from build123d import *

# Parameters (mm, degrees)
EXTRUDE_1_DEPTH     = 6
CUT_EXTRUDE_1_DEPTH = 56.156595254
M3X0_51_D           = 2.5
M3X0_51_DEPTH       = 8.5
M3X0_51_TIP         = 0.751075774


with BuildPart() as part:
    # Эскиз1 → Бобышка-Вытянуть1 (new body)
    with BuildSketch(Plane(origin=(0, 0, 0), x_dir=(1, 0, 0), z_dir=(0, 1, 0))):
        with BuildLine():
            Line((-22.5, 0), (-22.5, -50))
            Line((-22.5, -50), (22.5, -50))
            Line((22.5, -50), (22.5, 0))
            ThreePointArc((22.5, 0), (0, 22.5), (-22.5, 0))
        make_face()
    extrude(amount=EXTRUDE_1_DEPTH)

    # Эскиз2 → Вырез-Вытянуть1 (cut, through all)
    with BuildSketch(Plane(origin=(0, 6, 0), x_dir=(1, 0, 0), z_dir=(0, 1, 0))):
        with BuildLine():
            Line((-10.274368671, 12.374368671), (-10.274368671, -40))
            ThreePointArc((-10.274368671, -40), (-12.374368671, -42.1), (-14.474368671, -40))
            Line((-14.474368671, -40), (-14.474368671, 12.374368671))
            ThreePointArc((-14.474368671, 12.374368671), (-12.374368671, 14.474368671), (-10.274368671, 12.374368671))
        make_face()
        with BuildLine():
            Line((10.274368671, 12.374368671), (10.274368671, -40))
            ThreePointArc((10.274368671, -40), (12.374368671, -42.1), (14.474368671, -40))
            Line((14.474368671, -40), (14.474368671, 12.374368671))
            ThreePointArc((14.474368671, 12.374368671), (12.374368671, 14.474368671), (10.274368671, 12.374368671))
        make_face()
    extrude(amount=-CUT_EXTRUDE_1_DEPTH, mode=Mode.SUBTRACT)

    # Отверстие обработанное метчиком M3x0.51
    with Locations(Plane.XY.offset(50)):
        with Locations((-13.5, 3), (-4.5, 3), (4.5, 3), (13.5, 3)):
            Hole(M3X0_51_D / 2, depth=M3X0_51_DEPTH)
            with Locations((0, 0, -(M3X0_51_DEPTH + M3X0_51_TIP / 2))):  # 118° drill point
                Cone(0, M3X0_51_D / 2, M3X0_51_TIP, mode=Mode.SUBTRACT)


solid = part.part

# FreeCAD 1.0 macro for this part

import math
import FreeCAD as App
import Part
import Sketcher
from FreeCAD import Vector

doc = App.newDocument("Part")
body = doc.addObject("PartDesign::Body", "Body")

# Sketch on XZ plane
sketch1 = body.newObject("Sketcher::SketchObject", "Sketch")
sketch1.AttachmentSupport = (doc.getObject("XZ_Plane"), [""])
sketch1.MapMode = "FlatFace"
sketch1.addGeometry([
    Part.LineSegment(Vector(-22, 0, 0), Vector(-22, 50, 0)),
    Part.LineSegment(Vector(-22, 50, 0), Vector(22, 50, 0)),
    Part.LineSegment(Vector(22, 50, 0), Vector(22, 0, 0)),
    Part.ArcOfCircle(Part.Circle(Vector(0, 0, 0), Vector(0, 0, 1), 22), math.radians(180), math.radians(360)),
], False)
sketch1.addConstraint([
    Sketcher.Constraint("Coincident", 0, 2, 1, 1),
    Sketcher.Constraint("Coincident", 1, 2, 2, 1),
    Sketcher.Constraint("Tangent", 2, 2, 3, 2),
    Sketcher.Constraint("Tangent", 3, 1, 0, 1),
    Sketcher.Constraint("Vertical", 0),
    Sketcher.Constraint("Horizontal", 1),
    Sketcher.Constraint("Vertical", 2),
    Sketcher.Constraint("Coincident", 3, 3, -1, 1),
    Sketcher.Constraint("Radius", 3, 22.5),
    Sketcher.Constraint("DistanceY", 0, 1, 0, 2, 50.0),
])
pad1 = body.newObject("PartDesign::Pad", "Pad")
pad1.Profile = sketch1
pad1.Length = 6
pad1.Reversed = True

# Sketch on XZ plane
sketch2 = body.newObject("Sketcher::SketchObject", "Sketch001")
sketch2.AttachmentSupport = (doc.getObject("XZ_Plane"), [""])
sketch2.MapMode = "FlatFace"
sketch2.AttachmentOffset = App.Placement(Vector(0, 0, -6), App.Rotation())
sketch2.addGeometry([
    Part.LineSegment(Vector(-10.3, 40, 0), Vector(-10.3, -12.4, 0)),  # 0
    Part.ArcOfCircle(Part.Circle(Vector(-12.4, -12.4, 0), Vector(0, 0, 1), 2.1), math.radians(180), math.radians(360)),  # 1
    Part.LineSegment(Vector(-14.5, -12.4, 0), Vector(-14.5, 40, 0)),  # 2
    Part.ArcOfCircle(Part.Circle(Vector(-12.4, 40, 0), Vector(0, 0, 1), 2.1), math.radians(0), math.radians(180)),  # 3
    Part.LineSegment(Vector(10.3, -12.4, 0), Vector(10.3, 40, 0)),  # 4
    Part.ArcOfCircle(Part.Circle(Vector(12.4, 40, 0), Vector(0, 0, 1), 2.1), math.radians(0), math.radians(180)),  # 5
    Part.LineSegment(Vector(14.5, 40, 0), Vector(14.5, -12.4, 0)),  # 6
    Part.ArcOfCircle(Part.Circle(Vector(12.4, -12.4, 0), Vector(0, 0, 1), 2.1), math.radians(180), math.radians(360)),  # 7
], False)
sketch2.addConstraint([
    Sketcher.Constraint("Tangent", 0, 2, 1, 2),
    Sketcher.Constraint("Tangent", 1, 1, 2, 1),
    Sketcher.Constraint("Tangent", 2, 2, 3, 2),
    Sketcher.Constraint("Tangent", 3, 1, 0, 1),
    Sketcher.Constraint("Tangent", 4, 2, 5, 2),
    Sketcher.Constraint("Tangent", 5, 1, 6, 1),
    Sketcher.Constraint("Tangent", 6, 2, 7, 2),
    Sketcher.Constraint("Tangent", 7, 1, 4, 1),
    Sketcher.Constraint("Vertical", 0),
    Sketcher.Constraint("Vertical", 2),
    Sketcher.Constraint("Vertical", 4),
    Sketcher.Constraint("Vertical", 6),
    Sketcher.Constraint("Equal", 3, 5),
    Sketcher.Constraint("Symmetric", 3, 3, 5, 3, -2),
    Sketcher.Constraint("Horizontal", 1, 3, 7, 3),
    Sketcher.Constraint("Radius", 1, 2.1),
    Sketcher.Constraint("DistanceY", -1, 1, 3, 3, 40.0),
    Sketcher.Constraint("DistanceY", 0, 2, 0, 1, 52.374369),
    Sketcher.Constraint("DistanceX", 1, 3, -1, 1, 12.374369),
])
pocket1 = body.newObject("PartDesign::Pocket", "Pocket")
pocket1.Profile = sketch2
pocket1.Type = "ThroughAll"
pocket1.Reversed = True

# Sketch on XY plane
sketch3 = body.newObject("Sketcher::SketchObject", "Sketch002")
sketch3.AttachmentSupport = (doc.getObject("XY_Plane"), [""])
sketch3.MapMode = "FlatFace"
sketch3.AttachmentOffset = App.Placement(Vector(0, 0, 50), App.Rotation())
sketch3.addGeometry([
    Part.Circle(Vector(-13.5, 3, 0), Vector(0, 0, 1), 1.2),
    Part.Circle(Vector(-4.5, 3, 0), Vector(0, 0, 1), 1.2),
    Part.Circle(Vector(4.5, 3, 0), Vector(0, 0, 1), 1.2),
    Part.Circle(Vector(13.5, 3, 0), Vector(0, 0, 1), 1.2),
], False)
sketch3.addConstraint([
    Sketcher.Constraint("Equal", 0, 1),
    Sketcher.Constraint("Equal", 1, 2),
    Sketcher.Constraint("Equal", 2, 3),
    Sketcher.Constraint("Symmetric", 1, 3, 2, 3, -2),
    Sketcher.Constraint("Symmetric", 0, 3, 3, 3, -2),
    Sketcher.Constraint("Horizontal", 0, 3, 1, 3),
    Sketcher.Constraint("Diameter", 0, 2.5),
    Sketcher.Constraint("DistanceY", -1, 1, 0, 3, 3.0),
    Sketcher.Constraint("DistanceX", 0, 3, 1, 3, 9.0),
    Sketcher.Constraint("DistanceX", 1, 3, 2, 3, 9.0),
])
doc.recompute()
hole = body.newObject("PartDesign::Hole", "Hole")
hole.Profile = sketch3
hole.ThreadType = "None"
hole.Diameter = 2.5
hole.DepthType = "Dimension"
hole.Depth = 8.5
hole.DrillPoint = "Angled"
hole.DrillPointAngle = 118

doc.recompute()
